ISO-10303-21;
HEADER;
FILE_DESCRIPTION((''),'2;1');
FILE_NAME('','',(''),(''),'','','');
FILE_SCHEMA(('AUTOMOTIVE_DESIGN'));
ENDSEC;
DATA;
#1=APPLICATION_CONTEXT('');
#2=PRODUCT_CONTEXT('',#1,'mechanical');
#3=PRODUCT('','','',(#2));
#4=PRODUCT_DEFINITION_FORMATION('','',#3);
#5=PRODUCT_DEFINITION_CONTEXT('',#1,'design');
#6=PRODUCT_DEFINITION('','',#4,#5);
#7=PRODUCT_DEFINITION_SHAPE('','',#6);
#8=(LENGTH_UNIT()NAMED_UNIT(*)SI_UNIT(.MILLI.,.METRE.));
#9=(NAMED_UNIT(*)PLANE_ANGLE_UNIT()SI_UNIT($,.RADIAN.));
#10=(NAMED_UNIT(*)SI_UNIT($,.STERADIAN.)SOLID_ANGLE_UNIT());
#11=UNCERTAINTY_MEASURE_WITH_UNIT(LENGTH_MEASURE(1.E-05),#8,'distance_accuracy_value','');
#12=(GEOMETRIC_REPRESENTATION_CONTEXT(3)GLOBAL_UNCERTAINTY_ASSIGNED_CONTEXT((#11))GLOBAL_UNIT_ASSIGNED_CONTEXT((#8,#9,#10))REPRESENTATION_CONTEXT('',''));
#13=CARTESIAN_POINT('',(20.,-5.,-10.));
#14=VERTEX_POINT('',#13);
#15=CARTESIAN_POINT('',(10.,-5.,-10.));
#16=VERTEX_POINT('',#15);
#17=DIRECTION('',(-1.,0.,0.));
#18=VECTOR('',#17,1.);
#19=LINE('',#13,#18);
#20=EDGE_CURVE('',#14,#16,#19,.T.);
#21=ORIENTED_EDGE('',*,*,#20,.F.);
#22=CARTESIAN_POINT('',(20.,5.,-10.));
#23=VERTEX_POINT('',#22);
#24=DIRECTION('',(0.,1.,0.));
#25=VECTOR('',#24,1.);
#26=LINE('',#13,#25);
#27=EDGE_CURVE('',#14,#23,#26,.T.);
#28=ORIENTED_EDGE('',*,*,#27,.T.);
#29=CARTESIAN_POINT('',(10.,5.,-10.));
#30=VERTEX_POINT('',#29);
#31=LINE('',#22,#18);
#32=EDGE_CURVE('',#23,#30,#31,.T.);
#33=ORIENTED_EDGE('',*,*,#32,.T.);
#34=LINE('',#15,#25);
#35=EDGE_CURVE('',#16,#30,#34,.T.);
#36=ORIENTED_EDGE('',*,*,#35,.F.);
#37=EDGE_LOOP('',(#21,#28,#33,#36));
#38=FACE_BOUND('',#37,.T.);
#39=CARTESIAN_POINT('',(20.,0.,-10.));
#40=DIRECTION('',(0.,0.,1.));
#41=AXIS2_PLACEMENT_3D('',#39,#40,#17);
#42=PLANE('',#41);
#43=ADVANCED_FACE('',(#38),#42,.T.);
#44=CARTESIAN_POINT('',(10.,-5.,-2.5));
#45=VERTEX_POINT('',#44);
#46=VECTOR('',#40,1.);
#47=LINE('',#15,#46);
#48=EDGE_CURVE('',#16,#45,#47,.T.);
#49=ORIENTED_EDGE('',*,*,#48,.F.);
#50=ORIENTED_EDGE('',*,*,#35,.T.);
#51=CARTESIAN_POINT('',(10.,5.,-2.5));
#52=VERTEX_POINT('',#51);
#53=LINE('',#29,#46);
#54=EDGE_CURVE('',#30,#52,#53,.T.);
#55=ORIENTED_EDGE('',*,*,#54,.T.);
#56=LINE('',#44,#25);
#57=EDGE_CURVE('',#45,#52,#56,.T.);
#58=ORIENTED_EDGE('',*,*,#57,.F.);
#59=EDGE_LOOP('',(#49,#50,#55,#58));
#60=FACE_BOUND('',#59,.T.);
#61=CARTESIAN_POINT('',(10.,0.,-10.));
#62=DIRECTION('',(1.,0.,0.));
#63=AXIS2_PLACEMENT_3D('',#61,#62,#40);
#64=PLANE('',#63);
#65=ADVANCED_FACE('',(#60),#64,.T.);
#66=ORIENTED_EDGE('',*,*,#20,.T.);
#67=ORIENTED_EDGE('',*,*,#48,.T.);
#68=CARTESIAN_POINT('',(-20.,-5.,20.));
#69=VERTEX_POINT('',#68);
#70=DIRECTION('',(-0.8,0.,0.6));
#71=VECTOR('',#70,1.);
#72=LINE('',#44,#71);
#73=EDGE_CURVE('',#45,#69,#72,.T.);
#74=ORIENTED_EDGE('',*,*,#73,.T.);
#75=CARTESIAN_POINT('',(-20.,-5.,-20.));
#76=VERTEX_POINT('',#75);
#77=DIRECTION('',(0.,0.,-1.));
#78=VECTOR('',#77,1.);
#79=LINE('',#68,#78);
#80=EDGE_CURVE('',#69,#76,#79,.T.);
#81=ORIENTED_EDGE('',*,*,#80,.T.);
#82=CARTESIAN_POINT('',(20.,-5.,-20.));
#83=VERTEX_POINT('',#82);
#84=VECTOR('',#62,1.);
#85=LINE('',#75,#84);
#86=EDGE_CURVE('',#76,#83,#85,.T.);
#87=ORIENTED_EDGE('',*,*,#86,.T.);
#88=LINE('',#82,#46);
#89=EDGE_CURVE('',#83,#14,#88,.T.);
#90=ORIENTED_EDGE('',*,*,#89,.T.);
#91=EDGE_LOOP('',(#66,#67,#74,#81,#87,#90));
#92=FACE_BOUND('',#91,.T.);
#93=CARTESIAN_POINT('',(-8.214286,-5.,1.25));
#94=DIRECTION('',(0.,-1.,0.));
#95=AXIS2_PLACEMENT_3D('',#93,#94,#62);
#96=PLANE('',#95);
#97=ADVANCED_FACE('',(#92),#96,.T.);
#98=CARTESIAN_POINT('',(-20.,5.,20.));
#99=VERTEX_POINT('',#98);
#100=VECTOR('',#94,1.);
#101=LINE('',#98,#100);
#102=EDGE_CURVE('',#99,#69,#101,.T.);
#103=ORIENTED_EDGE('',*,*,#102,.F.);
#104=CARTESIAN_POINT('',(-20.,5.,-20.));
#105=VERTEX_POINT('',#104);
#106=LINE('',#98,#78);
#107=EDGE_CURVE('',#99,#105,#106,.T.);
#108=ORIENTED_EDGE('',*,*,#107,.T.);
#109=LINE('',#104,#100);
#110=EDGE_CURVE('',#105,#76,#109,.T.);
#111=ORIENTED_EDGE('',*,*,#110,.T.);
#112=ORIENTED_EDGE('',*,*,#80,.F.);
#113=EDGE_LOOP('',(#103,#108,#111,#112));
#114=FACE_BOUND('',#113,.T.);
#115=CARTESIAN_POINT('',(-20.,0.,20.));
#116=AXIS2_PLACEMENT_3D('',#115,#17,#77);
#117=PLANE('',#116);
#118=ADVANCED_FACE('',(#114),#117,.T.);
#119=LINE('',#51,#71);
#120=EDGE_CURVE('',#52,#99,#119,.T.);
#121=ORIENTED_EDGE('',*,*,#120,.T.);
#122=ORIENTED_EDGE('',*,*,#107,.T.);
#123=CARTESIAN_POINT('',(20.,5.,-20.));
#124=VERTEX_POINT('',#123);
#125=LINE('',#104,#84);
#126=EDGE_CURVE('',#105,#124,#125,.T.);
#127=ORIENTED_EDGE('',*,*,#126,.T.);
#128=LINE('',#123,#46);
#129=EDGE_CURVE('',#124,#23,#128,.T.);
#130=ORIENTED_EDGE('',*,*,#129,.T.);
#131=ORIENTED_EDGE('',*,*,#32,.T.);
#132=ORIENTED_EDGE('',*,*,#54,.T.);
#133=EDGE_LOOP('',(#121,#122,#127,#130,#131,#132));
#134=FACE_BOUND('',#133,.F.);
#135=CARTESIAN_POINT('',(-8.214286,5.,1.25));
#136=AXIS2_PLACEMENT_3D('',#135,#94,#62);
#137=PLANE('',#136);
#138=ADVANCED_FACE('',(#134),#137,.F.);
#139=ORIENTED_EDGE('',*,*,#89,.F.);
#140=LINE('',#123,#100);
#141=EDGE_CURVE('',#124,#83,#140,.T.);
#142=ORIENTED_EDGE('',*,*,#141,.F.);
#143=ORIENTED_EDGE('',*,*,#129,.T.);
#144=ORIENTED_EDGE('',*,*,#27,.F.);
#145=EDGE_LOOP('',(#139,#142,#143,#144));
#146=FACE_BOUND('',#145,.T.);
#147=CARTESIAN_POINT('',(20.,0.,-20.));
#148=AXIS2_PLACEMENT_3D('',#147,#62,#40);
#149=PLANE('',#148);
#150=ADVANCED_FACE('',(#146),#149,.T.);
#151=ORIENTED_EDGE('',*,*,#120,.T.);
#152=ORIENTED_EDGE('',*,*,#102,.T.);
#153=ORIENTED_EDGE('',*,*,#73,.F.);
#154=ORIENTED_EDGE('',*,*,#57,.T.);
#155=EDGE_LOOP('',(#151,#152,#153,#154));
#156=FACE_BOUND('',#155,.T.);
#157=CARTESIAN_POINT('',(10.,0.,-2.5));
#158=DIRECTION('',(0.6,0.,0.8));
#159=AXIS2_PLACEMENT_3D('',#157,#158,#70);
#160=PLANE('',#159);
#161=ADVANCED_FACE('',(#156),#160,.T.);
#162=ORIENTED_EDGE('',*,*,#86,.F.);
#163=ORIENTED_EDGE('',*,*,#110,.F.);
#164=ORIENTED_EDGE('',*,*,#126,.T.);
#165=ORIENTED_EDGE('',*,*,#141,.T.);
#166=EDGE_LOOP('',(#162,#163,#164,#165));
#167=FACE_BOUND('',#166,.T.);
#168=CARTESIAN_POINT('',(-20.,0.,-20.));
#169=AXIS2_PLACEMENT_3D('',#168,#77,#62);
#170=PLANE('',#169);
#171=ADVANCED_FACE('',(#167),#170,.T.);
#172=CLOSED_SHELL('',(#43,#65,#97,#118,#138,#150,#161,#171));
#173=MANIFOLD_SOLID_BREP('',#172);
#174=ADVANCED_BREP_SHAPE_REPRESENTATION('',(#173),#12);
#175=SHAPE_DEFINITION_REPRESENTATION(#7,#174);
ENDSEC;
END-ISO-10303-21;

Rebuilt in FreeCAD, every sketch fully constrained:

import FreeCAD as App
import Part
import Sketcher
from FreeCAD import Vector
Q = App.Units.Quantity


def add_polygon(sketch, points):
    """Adds a closed chain of lines whose ends are joined by coincident constraints."""
    first, n = sketch.GeometryCount, len(points)
    for a, b in zip(points, points[1:] + points[:1]):
        sketch.addGeometry(Part.LineSegment(App.Vector(*a, 0), App.Vector(*b, 0)), False)
    for i in range(n):
        sketch.addConstraint(Sketcher.Constraint("Coincident", first + i, 2, first + (i + 1) % n, 1))

doc = App.newDocument("Part")
params = doc.addObject("Spreadsheet::Sheet", "Params")
for row, (alias, value) in enumerate([
    ("sketch1_width", "40 mm"),
    ("sketch1_width2", "10 mm"),
    ("sketch1_height", "7.5 mm"),
    ("pad1_length", "10 mm"),
], start=1):
    params.set(f"A{row}", alias)
    params.set(f"B{row}", "=" + value)
    params.setAlias(f"B{row}", alias)

body = doc.addObject("PartDesign::Body", "Body")

sketch1 = body.newObject("Sketcher::SketchObject", "Sketch")
sketch1.AttachmentSupport = (doc.getObject("XZ_Plane"), [""])
sketch1.MapMode = "FlatFace"
add_polygon(sketch1, [(10, -2.5), (-20, 20), (-20, -20), (20, -20), (20, -10), (10, -10)])
sketch1.addConstraint([
    Sketcher.Constraint("Vertical", 1),
    Sketcher.Constraint("Horizontal", 2),
    Sketcher.Constraint("Vertical", 3),
    Sketcher.Constraint("Horizontal", 4),
    Sketcher.Constraint("Vertical", 5),
    Sketcher.Constraint("Symmetric", 0, 2, 2, 2, -1, 1),
    Sketcher.Constraint("Equal", 2, 1),
    Sketcher.Constraint("Equal", 4, 3),
    Sketcher.Constraint("DistanceX", 2, 1, 2, 2, Q("40 mm")),
    Sketcher.Constraint("DistanceX", 4, 2, 4, 1, Q("10 mm")),
    Sketcher.Constraint("DistanceY", 5, 1, 5, 2, Q("7.5 mm")),
])
sketch1.setExpression("Constraints[14]", "Params.sketch1_width")
sketch1.setExpression("Constraints[15]", "Params.sketch1_width2")
sketch1.setExpression("Constraints[16]", "Params.sketch1_height")
pad1 = body.newObject("PartDesign::Pad", "Pad")
pad1.Profile = sketch1
pad1.setExpression("Length", "Params.pad1_length")
pad1.Midplane = True

doc.recompute()
